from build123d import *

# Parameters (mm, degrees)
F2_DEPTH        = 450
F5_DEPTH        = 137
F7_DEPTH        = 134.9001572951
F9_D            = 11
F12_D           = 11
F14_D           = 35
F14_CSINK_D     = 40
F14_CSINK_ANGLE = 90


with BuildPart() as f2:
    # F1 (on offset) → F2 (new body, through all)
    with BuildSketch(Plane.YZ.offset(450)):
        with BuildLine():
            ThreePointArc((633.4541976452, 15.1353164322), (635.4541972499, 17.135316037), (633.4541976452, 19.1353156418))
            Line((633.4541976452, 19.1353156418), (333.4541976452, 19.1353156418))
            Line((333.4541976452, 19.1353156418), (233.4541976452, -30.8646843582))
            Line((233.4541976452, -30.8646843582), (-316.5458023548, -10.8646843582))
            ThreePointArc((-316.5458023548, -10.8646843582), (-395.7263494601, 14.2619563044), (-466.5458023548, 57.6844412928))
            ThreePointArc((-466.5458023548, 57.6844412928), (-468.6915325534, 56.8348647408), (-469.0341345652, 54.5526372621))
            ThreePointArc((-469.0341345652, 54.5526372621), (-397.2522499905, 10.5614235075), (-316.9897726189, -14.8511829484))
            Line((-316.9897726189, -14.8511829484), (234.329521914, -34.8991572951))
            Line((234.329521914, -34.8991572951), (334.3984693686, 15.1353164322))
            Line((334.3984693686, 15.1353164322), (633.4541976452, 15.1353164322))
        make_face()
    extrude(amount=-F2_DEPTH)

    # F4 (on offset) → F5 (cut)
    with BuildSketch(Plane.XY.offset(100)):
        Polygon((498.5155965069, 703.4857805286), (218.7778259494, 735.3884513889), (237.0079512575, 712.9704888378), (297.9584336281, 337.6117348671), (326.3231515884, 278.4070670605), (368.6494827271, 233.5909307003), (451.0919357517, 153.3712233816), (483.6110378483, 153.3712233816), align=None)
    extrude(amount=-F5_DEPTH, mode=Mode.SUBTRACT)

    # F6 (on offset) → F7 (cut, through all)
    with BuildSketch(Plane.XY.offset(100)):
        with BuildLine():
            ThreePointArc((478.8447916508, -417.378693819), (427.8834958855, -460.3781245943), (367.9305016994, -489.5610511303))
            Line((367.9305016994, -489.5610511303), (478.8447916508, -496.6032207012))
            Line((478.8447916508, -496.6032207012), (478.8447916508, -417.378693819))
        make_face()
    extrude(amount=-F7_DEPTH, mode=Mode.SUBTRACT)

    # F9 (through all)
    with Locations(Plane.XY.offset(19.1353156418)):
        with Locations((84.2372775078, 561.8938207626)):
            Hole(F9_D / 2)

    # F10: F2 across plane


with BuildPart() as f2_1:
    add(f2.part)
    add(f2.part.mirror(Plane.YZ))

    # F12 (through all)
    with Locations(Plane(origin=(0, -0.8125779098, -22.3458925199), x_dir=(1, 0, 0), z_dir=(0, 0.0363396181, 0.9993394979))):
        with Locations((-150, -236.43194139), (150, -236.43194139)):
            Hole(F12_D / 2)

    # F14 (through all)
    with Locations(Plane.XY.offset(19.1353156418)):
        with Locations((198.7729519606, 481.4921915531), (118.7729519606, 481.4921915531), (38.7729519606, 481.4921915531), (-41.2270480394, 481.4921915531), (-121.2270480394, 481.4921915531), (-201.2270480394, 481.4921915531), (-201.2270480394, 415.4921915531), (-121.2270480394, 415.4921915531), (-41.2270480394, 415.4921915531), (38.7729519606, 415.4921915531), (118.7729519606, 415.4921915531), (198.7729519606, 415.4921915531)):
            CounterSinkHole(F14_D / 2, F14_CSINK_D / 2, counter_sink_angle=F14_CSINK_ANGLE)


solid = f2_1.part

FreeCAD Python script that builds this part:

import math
import FreeCAD as App
import Part
import Sketcher
from FreeCAD import Vector
Q = App.Units.Quantity


def add_polygon(sketch, points):
    """Adds a closed chain of lines whose ends are joined by coincident constraints."""
    first, n = sketch.GeometryCount, len(points)
    for a, b in zip(points, points[1:] + points[:1]):
        sketch.addGeometry(Part.LineSegment(App.Vector(*a, 0), App.Vector(*b, 0)), False)
    for i in range(n):
        sketch.addConstraint(Sketcher.Constraint("Coincident", first + i, 2, first + (i + 1) % n, 1))

doc = App.newDocument("Part")
body = doc.addObject("PartDesign::Body", "Body")

# Sketch on YZ plane
sketch1 = doc.addObject("Sketcher::SketchObject", "Sketch")
body.addObject(sketch1)
sketch1.AttachmentSupport = (doc.YZ_Plane, [""])
sketch1.MapMode = "FlatFace"
sketch1.AttachmentOffset = App.Placement(Vector(0, 0, 450), App.Rotation())
sketch1.addGeometry([
    Part.ArcOfCircle(Part.Circle(Vector(633.5, 17.1, 0), Vector(0, 0, 1), 2), math.radians(-90), math.radians(90)),  # 0
    Part.LineSegment(Vector(633.5, 19.1, 0), Vector(333.5, 19.1, 0)),  # 1
    Part.LineSegment(Vector(333.5, 19.1, 0), Vector(233.5, -30.9, 0)),  # 2
    Part.LineSegment(Vector(233.5, -30.9, 0), Vector(-316.5, -10.9, 0)),  # 3
    Part.ArcOfCircle(Part.Circle(Vector(-253.1, 326.3, 0), Vector(0, 0, 1), 343.1), math.radians(-128), math.radians(-101)),  # 4
    Part.ArcOfCircle(Part.Circle(Vector(-466.9, 55.4, 0), Vector(0, 0, 1), 2.3), math.radians(82), math.radians(201)),  # 5
    Part.ArcOfCircle(Part.Circle(Vector(-253.1, 326.3, 0), Vector(0, 0, 1), 347.1), math.radians(-128), math.radians(-101)),  # 6
    Part.LineSegment(Vector(-317, -14.9, 0), Vector(234.3, -34.9, 0)),  # 7
    Part.LineSegment(Vector(234.3, -34.9, 0), Vector(334.4, 15.1, 0)),  # 8
    Part.LineSegment(Vector(334.4, 15.1, 0), Vector(633.5, 15.1, 0)),  # 9
], False)
sketch1.addConstraint([
    Sketcher.Constraint("Tangent", 0, 2, 1, 1),
    Sketcher.Constraint("Coincident", 1, 2, 2, 1),
    Sketcher.Constraint("Coincident", 2, 2, 3, 1),
    Sketcher.Constraint("Coincident", 3, 2, 4, 2),
    Sketcher.Constraint("Coincident", 4, 1, 5, 1),
    Sketcher.Constraint("Coincident", 5, 2, 6, 1),
    Sketcher.Constraint("Coincident", 6, 2, 7, 1),
    Sketcher.Constraint("Coincident", 7, 2, 8, 1),
    Sketcher.Constraint("Coincident", 8, 2, 9, 1),
    Sketcher.Constraint("Tangent", 9, 2, 0, 1),
    Sketcher.Constraint("Horizontal", 1),
    Sketcher.Constraint("Horizontal", 9),
    Sketcher.Constraint("Coincident", 6, 3, 4, 3),
    Sketcher.Constraint("Parallel", 3, 7),
    Sketcher.Constraint("Parallel", 2, 8),
    Sketcher.Constraint("Radius", 0, Q("2 mm")),
    Sketcher.Constraint("DistanceX", 1, 2, 1, 1, Q("300 mm")),
    Sketcher.Constraint("DistanceX", 2, 2, 1, 2, Q("100 mm")),
    Sketcher.Constraint("DistanceY", 2, 2, 1, 2, Q("50 mm")),
    Sketcher.Constraint("DistanceX", 3, 2, 2, 2, Q("550 mm")),
    Sketcher.Constraint("DistanceY", 2, 2, 3, 2, Q("20 mm")),
    Sketcher.Constraint("DistanceX", 4, 1, 3, 2, Q("150 mm")),
    Sketcher.Constraint("Radius", 4, Q("343.058871 mm")),
    Sketcher.Constraint("Radius", 5, Q("2.31262 mm")),
    Sketcher.Constraint("Radius", 6, Q("347.058871 mm")),
    Sketcher.Constraint("DistanceX", 9, 1, 9, 2, Q("299.055728 mm")),
    Sketcher.Constraint("DistanceY", 6, 2, 3, 2, Q("3.986499 mm")),
    Sketcher.Constraint("DistanceX", 4, 3, -1, 1, Q("253.13465 mm")),
    Sketcher.Constraint("DistanceX", -1, 1, 7, 2, Q("234.329522 mm")),
    Sketcher.Constraint("DistanceY", 5, 3, 4, 3, Q("270.88656 mm")),
    Sketcher.Constraint("DistanceY", -1, 1, 0, 3, Q("17.135316 mm")),
])
pad1 = doc.addObject("PartDesign::Pad", "Pad")
body.addObject(pad1)
pad1.Profile = sketch1
pad1.Length = 450
pad1.Reversed = True

# Sketch on XY plane
sketch2 = doc.addObject("Sketcher::SketchObject", "Sketch001")
body.addObject(sketch2)
sketch2.AttachmentSupport = (doc.XY_Plane, [""])
sketch2.MapMode = "FlatFace"
sketch2.AttachmentOffset = App.Placement(Vector(0, 0, 100), App.Rotation())
add_polygon(sketch2, [(498.515597, 703.485781), (218.777826, 735.388451), (237.007951, 712.970489), (297.958434, 337.611735), (326.323152, 278.407067), (368.649483, 233.590931), (451.091936, 153.371223), (483.611038, 153.371223)])  # lines 0-7
sketch2.addConstraint([
    Sketcher.Constraint("Horizontal", 6),
    Sketcher.Constraint("DistanceX", 1, 2, 3, 2, Q("89.3152 mm")),
    Sketcher.Constraint("Distance", 1, Q("28.89468 mm")),
    Sketcher.Constraint("Distance", 7, Q("550.316429 mm")),
    Sketcher.Constraint("DistanceX", 6, 1, 6, 2, Q("32.519102 mm")),
    Sketcher.Constraint("DistanceY", -1, 1, 0, 2, Q("735.388451 mm")),
    Sketcher.Constraint("DistanceX", -1, 1, 1, 2, Q("237.007951 mm")),
    Sketcher.Constraint("DistanceY", -1, 1, 1, 2, Q("712.970489 mm")),
    Sketcher.Constraint("DistanceY", -1, 1, 4, 2, Q("233.590931 mm")),
    Sketcher.Constraint("DistanceY", -1, 1, 7, 2, Q("703.485781 mm")),
    Sketcher.Constraint("DistanceY", 3, 2, 1, 2, Q("434.563422 mm")),
    Sketcher.Constraint("DistanceX", 3, 2, 4, 2, Q("42.326331 mm")),
    Sketcher.Constraint("DistanceX", 2, 2, 4, 2, Q("70.691049 mm")),
    Sketcher.Constraint("DistanceY", 5, 2, 2, 2, Q("184.240511 mm")),
    Sketcher.Constraint("DistanceX", 0, 2, 5, 2, Q("232.31411 mm")),
    Sketcher.Constraint("DistanceY", 5, 2, 0, 2, Q("582.017228 mm")),
])
pocket1 = doc.addObject("PartDesign::Pocket", "Pocket")
body.addObject(pocket1)
pocket1.Profile = sketch2
pocket1.Length = 137

# Sketch on XY plane
sketch3 = doc.addObject("Sketcher::SketchObject", "Sketch002")
body.addObject(sketch3)
sketch3.AttachmentSupport = (doc.XY_Plane, [""])
sketch3.MapMode = "FlatFace"
sketch3.AttachmentOffset = App.Placement(Vector(0, 0, 100), App.Rotation())
sketch3.addGeometry([
    Part.ArcOfCircle(Part.Circle(Vector(281, -234, 0), Vector(0, 0, 1), 270), math.radians(-71), math.radians(-43)),
    Part.LineSegment(Vector(368, -490, 0), Vector(479, -497, 0)),
    Part.LineSegment(Vector(479, -497, 0), Vector(479, -417, 0)),
], False)
sketch3.addConstraint([
    Sketcher.Constraint("Coincident", 0, 1, 1, 1),
    Sketcher.Constraint("Coincident", 1, 2, 2, 1),
    Sketcher.Constraint("Coincident", 2, 2, 0, 2),
    Sketcher.Constraint("Vertical", 2),
    Sketcher.Constraint("Radius", 0, Q("269.704377 mm")),
    Sketcher.Constraint("DistanceX", -1, 1, 0, 1, Q("367.930502 mm")),
    Sketcher.Constraint("DistanceY", 2, 1, 2, 2, Q("79.224527 mm")),
    Sketcher.Constraint("DistanceY", 0, 1, -1, 1, Q("489.561051 mm")),
    Sketcher.Constraint("DistanceX", -1, 1, 1, 2, Q("478.844792 mm")),
    Sketcher.Constraint("DistanceY", 1, 2, -1, 1, Q("496.603221 mm")),
])
pocket2 = doc.addObject("PartDesign::Pocket", "Pocket001")
body.addObject(pocket2)
pocket2.Profile = sketch3
pocket2.Type = "ThroughAll"

# Sketch on XY plane
sketch4 = doc.addObject("Sketcher::SketchObject", "Sketch003")
body.addObject(sketch4)
sketch4.AttachmentSupport = (doc.XY_Plane, [""])
sketch4.MapMode = "FlatFace"
sketch4.AttachmentOffset = App.Placement(Vector(0, 0, 19.135316), App.Rotation())
sketch4.addGeometry(Part.Circle(Vector(84, 562, 0), Vector(0, 0, 1), 6), False)
sketch4.addConstraint([
    Sketcher.Constraint("Diameter", 0, Q("11 mm")),
    Sketcher.Constraint("DistanceY", -1, 1, 0, 3, Q("561.893821 mm")),
    Sketcher.Constraint("DistanceX", -1, 1, 0, 3, Q("84.237278 mm")),
])
doc.recompute()
hole = doc.addObject("PartDesign::Hole", "Hole")
body.addObject(hole)
hole.Profile = sketch4
hole.ThreadType = "None"
hole.Diameter = 11
hole.DepthType = "ThroughAll"
body2 = doc.addObject("PartDesign::Body", "Body001")
doc.recompute()

body2.BaseFeature = body
doc.recompute()

mirroring = doc.addObject("Part::Mirroring", "Mirroring")
mirroring.Source = body
mirroring.Base = Vector(0, 0, 0)
mirroring.Normal = Vector(1, 0, 0)
body3 = doc.addObject("PartDesign::Body", "Body002")
body3.BaseFeature = mirroring
boolean = doc.addObject("PartDesign::Boolean", "Boolean")
body2.addObject(boolean)
boolean.Type = "Fuse"
boolean.addObjects([body3])
doc.recompute()

# Sketch on an angled plane
sketch5 = doc.addObject("Sketcher::SketchObject", "Sketch004")
body2.addObject(sketch5)
sketch5.Placement = App.Placement(Vector(0, -0.812578, -22.345893), App.Rotation(Vector(1, 0, 0), Vector(0, 0.999339498, -0.036339618), Vector(0, 0.036339618, 0.999339498), "ZXY"))
sketch5.addGeometry([
    Part.Circle(Vector(-150, -236, 0), Vector(0, 0, 1), 6),
    Part.Circle(Vector(150, -236, 0), Vector(0, 0, 1), 6),
], False)
sketch5.addConstraint([
    Sketcher.Constraint("Equal", 0, 1),
    Sketcher.Constraint("Symmetric", 0, 3, 1, 3, -2),
    Sketcher.Constraint("Diameter", 0, Q("11 mm")),
    Sketcher.Constraint("DistanceX", 0, 3, -1, 1, Q("150 mm")),
    Sketcher.Constraint("DistanceY", 0, 3, -1, 1, Q("236.431941 mm")),
])
doc.recompute()
hole2 = doc.addObject("PartDesign::Hole", "Hole001")
body2.addObject(hole2)
hole2.Profile = sketch5
hole2.ThreadType = "None"
hole2.Diameter = 11
hole2.DepthType = "ThroughAll"

# Sketch on XY plane
sketch6 = doc.addObject("Sketcher::SketchObject", "Sketch005")
body2.addObject(sketch6)
sketch6.AttachmentSupport = (doc.getObject("XY_Plane001"), [""])
sketch6.MapMode = "FlatFace"
sketch6.AttachmentOffset = App.Placement(Vector(0, 0, 19.135316), App.Rotation())
sketch6.addGeometry([
    Part.Circle(Vector(199, 481, 0), Vector(0, 0, 1), 18),  # 0
    Part.Circle(Vector(119, 481, 0), Vector(0, 0, 1), 18),  # 1
    Part.Circle(Vector(39, 481, 0), Vector(0, 0, 1), 18),  # 2
    Part.Circle(Vector(-41, 481, 0), Vector(0, 0, 1), 18),  # 3
    Part.Circle(Vector(-121, 481, 0), Vector(0, 0, 1), 18),  # 4
    Part.Circle(Vector(-201, 481, 0), Vector(0, 0, 1), 18),  # 5
    Part.Circle(Vector(-201, 415, 0), Vector(0, 0, 1), 18),  # 6
    Part.Circle(Vector(-121, 415, 0), Vector(0, 0, 1), 18),  # 7
    Part.Circle(Vector(-41, 415, 0), Vector(0, 0, 1), 18),  # 8
    Part.Circle(Vector(39, 415, 0), Vector(0, 0, 1), 18),  # 9
    Part.Circle(Vector(119, 415, 0), Vector(0, 0, 1), 18),  # 10
    Part.Circle(Vector(199, 415, 0), Vector(0, 0, 1), 18),  # 11
], False)
sketch6.addConstraint([
    Sketcher.Constraint("Equal", 0, 1),
    Sketcher.Constraint("Equal", 1, 2),
    Sketcher.Constraint("Equal", 2, 3),
    Sketcher.Constraint("Equal", 3, 4),
    Sketcher.Constraint("Equal", 4, 5),
    Sketcher.Constraint("Equal", 5, 6),
    Sketcher.Constraint("Equal", 6, 7),
    Sketcher.Constraint("Equal", 7, 8),
    Sketcher.Constraint("Equal", 8, 9),
    Sketcher.Constraint("Equal", 9, 10),
    Sketcher.Constraint("Equal", 10, 11),
    Sketcher.Constraint("Horizontal", 0, 3, 1, 3),
    Sketcher.Constraint("Horizontal", 1, 3, 2, 3),
    Sketcher.Constraint("Horizontal", 2, 3, 3, 3),
    Sketcher.Constraint("Horizontal", 3, 3, 4, 3),
    Sketcher.Constraint("Horizontal", 4, 3, 5, 3),
    Sketcher.Constraint("Horizontal", 6, 3, 7, 3),
    Sketcher.Constraint("Horizontal", 7, 3, 8, 3),
    Sketcher.Constraint("Horizontal", 8, 3, 9, 3),
    Sketcher.Constraint("Horizontal", 9, 3, 10, 3),
    Sketcher.Constraint("Horizontal", 10, 3, 11, 3),
    Sketcher.Constraint("Vertical", 5, 3, 6, 3),
    Sketcher.Constraint("Vertical", 4, 3, 7, 3),
    Sketcher.Constraint("Vertical", 3, 3, 8, 3),
    Sketcher.Constraint("Vertical", 2, 3, 9, 3),
    Sketcher.Constraint("Vertical", 1, 3, 10, 3),
    Sketcher.Constraint("Vertical", 0, 3, 11, 3),
    Sketcher.Constraint("Diameter", 0, Q("35 mm")),
    Sketcher.Constraint("DistanceX", 1, 3, 0, 3, Q("80 mm")),
    Sketcher.Constraint("DistanceX", 2, 3, 1, 3, Q("80 mm")),
    Sketcher.Constraint("DistanceX", 3, 3, 2, 3, Q("80 mm")),
    Sketcher.Constraint("DistanceX", 4, 3, 3, 3, Q("80 mm")),
    Sketcher.Constraint("DistanceX", 5, 3, 4, 3, Q("80 mm")),
    Sketcher.Constraint("DistanceY", 6, 3, 5, 3, Q("66 mm")),
    Sketcher.Constraint("DistanceX", -1, 1, 0, 3, Q("198.772952 mm")),
    Sketcher.Constraint("DistanceY", -1, 1, 0, 3, Q("481.492192 mm")),
])
doc.recompute()
hole3 = doc.addObject("PartDesign::Hole", "Hole002")
body2.addObject(hole3)
hole3.Profile = sketch6
hole3.ThreadType = "None"
hole3.Diameter = 35
hole3.DepthType = "ThroughAll"
hole3.HoleCutType = "Countersink"
hole3.HoleCutDiameter = 40
hole3.HoleCutCountersinkAngle = 90
mirroring.Visibility = False

doc.recompute()
